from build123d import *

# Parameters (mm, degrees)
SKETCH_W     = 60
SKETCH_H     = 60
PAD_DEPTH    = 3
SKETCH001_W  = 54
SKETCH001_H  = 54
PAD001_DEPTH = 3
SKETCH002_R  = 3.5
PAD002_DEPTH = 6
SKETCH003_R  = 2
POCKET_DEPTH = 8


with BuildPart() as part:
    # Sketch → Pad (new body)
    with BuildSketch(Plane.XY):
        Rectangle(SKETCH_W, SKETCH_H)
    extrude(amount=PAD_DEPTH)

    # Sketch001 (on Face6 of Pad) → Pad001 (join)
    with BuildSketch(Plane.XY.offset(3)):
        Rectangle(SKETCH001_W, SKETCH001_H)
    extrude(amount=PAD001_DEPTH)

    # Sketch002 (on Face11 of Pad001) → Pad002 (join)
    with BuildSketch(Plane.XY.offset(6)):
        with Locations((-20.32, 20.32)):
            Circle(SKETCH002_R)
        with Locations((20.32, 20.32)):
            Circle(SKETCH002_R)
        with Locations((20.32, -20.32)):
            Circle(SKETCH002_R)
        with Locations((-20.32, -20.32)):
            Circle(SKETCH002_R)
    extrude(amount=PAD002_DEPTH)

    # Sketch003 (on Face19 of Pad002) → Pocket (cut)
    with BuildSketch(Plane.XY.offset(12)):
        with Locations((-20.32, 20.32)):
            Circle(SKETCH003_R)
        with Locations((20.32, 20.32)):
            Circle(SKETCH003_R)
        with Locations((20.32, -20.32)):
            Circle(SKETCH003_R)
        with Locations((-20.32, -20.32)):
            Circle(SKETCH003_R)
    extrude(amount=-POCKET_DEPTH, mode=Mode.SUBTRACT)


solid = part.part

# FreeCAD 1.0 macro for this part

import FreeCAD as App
import Part
import Sketcher

V = App.Vector
Q = App.Units.Quantity


def add_polygon(sketch, points):
    """Adds a closed chain of lines whose ends are joined by coincident constraints."""
    first, n = sketch.GeometryCount, len(points)
    for a, b in zip(points, points[1:] + points[:1]):
        sketch.addGeometry(Part.LineSegment(App.Vector(*a, 0), App.Vector(*b, 0)), False)
    for i in range(n):
        sketch.addConstraint(Sketcher.Constraint("Coincident", first + i, 2, first + (i + 1) % n, 1))

doc = App.newDocument("Part")
body = doc.addObject("PartDesign::Body", "Body")

sketch1 = doc.addObject("Sketcher::SketchObject", "Sketch")
body.addObject(sketch1)
sketch1.AttachmentSupport = (doc.XY_Plane, [""])
sketch1.MapMode = "FlatFace"
add_polygon(sketch1, [(-30, 30), (-30, -30), (30, -30), (30, 30)])
sketch1.addConstraint(Sketcher.Constraint("Vertical", 0))
sketch1.addConstraint(Sketcher.Constraint("Horizontal", 1))
sketch1.addConstraint(Sketcher.Constraint("Vertical", 2))
sketch1.addConstraint(Sketcher.Constraint("Horizontal", 3))
sketch1.addConstraint(Sketcher.Constraint("Symmetric", 0, 2, 2, 2, -1, 1))
sketch1.addConstraint(Sketcher.Constraint("Equal", 3, 0))
sketch1.addConstraint(Sketcher.Constraint("DistanceX", 1, 1, 1, 2, Q("60 mm")))
pad1 = doc.addObject("PartDesign::Pad", "Pad")
body.addObject(pad1)
pad1.Profile = sketch1
pad1.Length = 3

sketch2 = doc.addObject("Sketcher::SketchObject", "Sketch001")
body.addObject(sketch2)
sketch2.AttachmentSupport = (doc.XY_Plane, [""])
sketch2.MapMode = "FlatFace"
sketch2.AttachmentOffset = App.Placement(V(0, 0, 3), App.Rotation())
add_polygon(sketch2, [(-27, 27), (-27, -27), (27, -27), (27, 27)])
sketch2.addConstraint(Sketcher.Constraint("Vertical", 0))
sketch2.addConstraint(Sketcher.Constraint("Horizontal", 1))
sketch2.addConstraint(Sketcher.Constraint("Vertical", 2))
sketch2.addConstraint(Sketcher.Constraint("Horizontal", 3))
sketch2.addConstraint(Sketcher.Constraint("Symmetric", 0, 2, 2, 2, -1, 1))
sketch2.addConstraint(Sketcher.Constraint("Equal", 3, 0))
sketch2.addConstraint(Sketcher.Constraint("DistanceX", 1, 1, 1, 2, Q("54 mm")))
pad2 = doc.addObject("PartDesign::Pad", "Pad001")
body.addObject(pad2)
pad2.Profile = sketch2
pad2.Length = 3

sketch3 = doc.addObject("Sketcher::SketchObject", "Sketch002")
body.addObject(sketch3)
sketch3.AttachmentSupport = (doc.XY_Plane, [""])
sketch3.MapMode = "FlatFace"
sketch3.AttachmentOffset = App.Placement(V(0, 0, 6), App.Rotation())
sketch3.addGeometry(Part.Circle(V(-20.32, 20.32, 0), V(0, 0, 1), 3.5), False)
sketch3.addGeometry(Part.Circle(V(20.32, 20.32, 0), V(0, 0, 1), 3.5), False)
sketch3.addGeometry(Part.Circle(V(20.32, -20.32, 0), V(0, 0, 1), 3.5), False)
sketch3.addGeometry(Part.Circle(V(-20.32, -20.32, 0), V(0, 0, 1), 3.5), False)
sketch3.addConstraint(Sketcher.Constraint("Equal", 0, 1))
sketch3.addConstraint(Sketcher.Constraint("Equal", 1, 2))
sketch3.addConstraint(Sketcher.Constraint("Equal", 2, 3))
sketch3.addConstraint(Sketcher.Constraint("Symmetric", 0, 3, 2, 3, -1, 1))
sketch3.addConstraint(Sketcher.Constraint("Symmetric", 1, 3, 3, 3, -1, 1))
sketch3.addConstraint(Sketcher.Constraint("Symmetric", 0, 3, 1, 3, -2))
sketch3.addConstraint(Sketcher.Constraint("Diameter", 0, Q("7 mm")))
sketch3.addConstraint(Sketcher.Constraint("DistanceX", 0, 3, -1, 1, Q("20.32 mm")))
sketch3.addConstraint(Sketcher.Constraint("DistanceY", -1, 1, 0, 3, Q("20.32 mm")))
pad3 = doc.addObject("PartDesign::Pad", "Pad002")
body.addObject(pad3)
pad3.Profile = sketch3
pad3.Length = 6

sketch4 = doc.addObject("Sketcher::SketchObject", "Sketch003")
body.addObject(sketch4)
sketch4.AttachmentSupport = (doc.XY_Plane, [""])
sketch4.MapMode = "FlatFace"
sketch4.AttachmentOffset = App.Placement(V(0, 0, 12), App.Rotation())
sketch4.addGeometry(Part.Circle(V(-20.32, 20.32, 0), V(0, 0, 1), 2), False)
sketch4.addGeometry(Part.Circle(V(20.32, 20.32, 0), V(0, 0, 1), 2), False)
sketch4.addGeometry(Part.Circle(V(20.32, -20.32, 0), V(0, 0, 1), 2), False)
sketch4.addGeometry(Part.Circle(V(-20.32, -20.32, 0), V(0, 0, 1), 2), False)
sketch4.addConstraint(Sketcher.Constraint("Equal", 0, 1))
sketch4.addConstraint(Sketcher.Constraint("Equal", 1, 2))
sketch4.addConstraint(Sketcher.Constraint("Equal", 2, 3))
sketch4.addConstraint(Sketcher.Constraint("Symmetric", 0, 3, 2, 3, -1, 1))
sketch4.addConstraint(Sketcher.Constraint("Symmetric", 1, 3, 3, 3, -1, 1))
sketch4.addConstraint(Sketcher.Constraint("Symmetric", 0, 3, 1, 3, -2))
sketch4.addConstraint(Sketcher.Constraint("Diameter", 0, Q("4 mm")))
sketch4.addConstraint(Sketcher.Constraint("DistanceX", 0, 3, -1, 1, Q("20.32 mm")))
sketch4.addConstraint(Sketcher.Constraint("DistanceY", -1, 1, 0, 3, Q("20.32 mm")))
pocket1 = doc.addObject("PartDesign::Pocket", "Pocket")
body.addObject(pocket1)
pocket1.Profile = sketch4
pocket1.Length = 8

doc.recompute()
